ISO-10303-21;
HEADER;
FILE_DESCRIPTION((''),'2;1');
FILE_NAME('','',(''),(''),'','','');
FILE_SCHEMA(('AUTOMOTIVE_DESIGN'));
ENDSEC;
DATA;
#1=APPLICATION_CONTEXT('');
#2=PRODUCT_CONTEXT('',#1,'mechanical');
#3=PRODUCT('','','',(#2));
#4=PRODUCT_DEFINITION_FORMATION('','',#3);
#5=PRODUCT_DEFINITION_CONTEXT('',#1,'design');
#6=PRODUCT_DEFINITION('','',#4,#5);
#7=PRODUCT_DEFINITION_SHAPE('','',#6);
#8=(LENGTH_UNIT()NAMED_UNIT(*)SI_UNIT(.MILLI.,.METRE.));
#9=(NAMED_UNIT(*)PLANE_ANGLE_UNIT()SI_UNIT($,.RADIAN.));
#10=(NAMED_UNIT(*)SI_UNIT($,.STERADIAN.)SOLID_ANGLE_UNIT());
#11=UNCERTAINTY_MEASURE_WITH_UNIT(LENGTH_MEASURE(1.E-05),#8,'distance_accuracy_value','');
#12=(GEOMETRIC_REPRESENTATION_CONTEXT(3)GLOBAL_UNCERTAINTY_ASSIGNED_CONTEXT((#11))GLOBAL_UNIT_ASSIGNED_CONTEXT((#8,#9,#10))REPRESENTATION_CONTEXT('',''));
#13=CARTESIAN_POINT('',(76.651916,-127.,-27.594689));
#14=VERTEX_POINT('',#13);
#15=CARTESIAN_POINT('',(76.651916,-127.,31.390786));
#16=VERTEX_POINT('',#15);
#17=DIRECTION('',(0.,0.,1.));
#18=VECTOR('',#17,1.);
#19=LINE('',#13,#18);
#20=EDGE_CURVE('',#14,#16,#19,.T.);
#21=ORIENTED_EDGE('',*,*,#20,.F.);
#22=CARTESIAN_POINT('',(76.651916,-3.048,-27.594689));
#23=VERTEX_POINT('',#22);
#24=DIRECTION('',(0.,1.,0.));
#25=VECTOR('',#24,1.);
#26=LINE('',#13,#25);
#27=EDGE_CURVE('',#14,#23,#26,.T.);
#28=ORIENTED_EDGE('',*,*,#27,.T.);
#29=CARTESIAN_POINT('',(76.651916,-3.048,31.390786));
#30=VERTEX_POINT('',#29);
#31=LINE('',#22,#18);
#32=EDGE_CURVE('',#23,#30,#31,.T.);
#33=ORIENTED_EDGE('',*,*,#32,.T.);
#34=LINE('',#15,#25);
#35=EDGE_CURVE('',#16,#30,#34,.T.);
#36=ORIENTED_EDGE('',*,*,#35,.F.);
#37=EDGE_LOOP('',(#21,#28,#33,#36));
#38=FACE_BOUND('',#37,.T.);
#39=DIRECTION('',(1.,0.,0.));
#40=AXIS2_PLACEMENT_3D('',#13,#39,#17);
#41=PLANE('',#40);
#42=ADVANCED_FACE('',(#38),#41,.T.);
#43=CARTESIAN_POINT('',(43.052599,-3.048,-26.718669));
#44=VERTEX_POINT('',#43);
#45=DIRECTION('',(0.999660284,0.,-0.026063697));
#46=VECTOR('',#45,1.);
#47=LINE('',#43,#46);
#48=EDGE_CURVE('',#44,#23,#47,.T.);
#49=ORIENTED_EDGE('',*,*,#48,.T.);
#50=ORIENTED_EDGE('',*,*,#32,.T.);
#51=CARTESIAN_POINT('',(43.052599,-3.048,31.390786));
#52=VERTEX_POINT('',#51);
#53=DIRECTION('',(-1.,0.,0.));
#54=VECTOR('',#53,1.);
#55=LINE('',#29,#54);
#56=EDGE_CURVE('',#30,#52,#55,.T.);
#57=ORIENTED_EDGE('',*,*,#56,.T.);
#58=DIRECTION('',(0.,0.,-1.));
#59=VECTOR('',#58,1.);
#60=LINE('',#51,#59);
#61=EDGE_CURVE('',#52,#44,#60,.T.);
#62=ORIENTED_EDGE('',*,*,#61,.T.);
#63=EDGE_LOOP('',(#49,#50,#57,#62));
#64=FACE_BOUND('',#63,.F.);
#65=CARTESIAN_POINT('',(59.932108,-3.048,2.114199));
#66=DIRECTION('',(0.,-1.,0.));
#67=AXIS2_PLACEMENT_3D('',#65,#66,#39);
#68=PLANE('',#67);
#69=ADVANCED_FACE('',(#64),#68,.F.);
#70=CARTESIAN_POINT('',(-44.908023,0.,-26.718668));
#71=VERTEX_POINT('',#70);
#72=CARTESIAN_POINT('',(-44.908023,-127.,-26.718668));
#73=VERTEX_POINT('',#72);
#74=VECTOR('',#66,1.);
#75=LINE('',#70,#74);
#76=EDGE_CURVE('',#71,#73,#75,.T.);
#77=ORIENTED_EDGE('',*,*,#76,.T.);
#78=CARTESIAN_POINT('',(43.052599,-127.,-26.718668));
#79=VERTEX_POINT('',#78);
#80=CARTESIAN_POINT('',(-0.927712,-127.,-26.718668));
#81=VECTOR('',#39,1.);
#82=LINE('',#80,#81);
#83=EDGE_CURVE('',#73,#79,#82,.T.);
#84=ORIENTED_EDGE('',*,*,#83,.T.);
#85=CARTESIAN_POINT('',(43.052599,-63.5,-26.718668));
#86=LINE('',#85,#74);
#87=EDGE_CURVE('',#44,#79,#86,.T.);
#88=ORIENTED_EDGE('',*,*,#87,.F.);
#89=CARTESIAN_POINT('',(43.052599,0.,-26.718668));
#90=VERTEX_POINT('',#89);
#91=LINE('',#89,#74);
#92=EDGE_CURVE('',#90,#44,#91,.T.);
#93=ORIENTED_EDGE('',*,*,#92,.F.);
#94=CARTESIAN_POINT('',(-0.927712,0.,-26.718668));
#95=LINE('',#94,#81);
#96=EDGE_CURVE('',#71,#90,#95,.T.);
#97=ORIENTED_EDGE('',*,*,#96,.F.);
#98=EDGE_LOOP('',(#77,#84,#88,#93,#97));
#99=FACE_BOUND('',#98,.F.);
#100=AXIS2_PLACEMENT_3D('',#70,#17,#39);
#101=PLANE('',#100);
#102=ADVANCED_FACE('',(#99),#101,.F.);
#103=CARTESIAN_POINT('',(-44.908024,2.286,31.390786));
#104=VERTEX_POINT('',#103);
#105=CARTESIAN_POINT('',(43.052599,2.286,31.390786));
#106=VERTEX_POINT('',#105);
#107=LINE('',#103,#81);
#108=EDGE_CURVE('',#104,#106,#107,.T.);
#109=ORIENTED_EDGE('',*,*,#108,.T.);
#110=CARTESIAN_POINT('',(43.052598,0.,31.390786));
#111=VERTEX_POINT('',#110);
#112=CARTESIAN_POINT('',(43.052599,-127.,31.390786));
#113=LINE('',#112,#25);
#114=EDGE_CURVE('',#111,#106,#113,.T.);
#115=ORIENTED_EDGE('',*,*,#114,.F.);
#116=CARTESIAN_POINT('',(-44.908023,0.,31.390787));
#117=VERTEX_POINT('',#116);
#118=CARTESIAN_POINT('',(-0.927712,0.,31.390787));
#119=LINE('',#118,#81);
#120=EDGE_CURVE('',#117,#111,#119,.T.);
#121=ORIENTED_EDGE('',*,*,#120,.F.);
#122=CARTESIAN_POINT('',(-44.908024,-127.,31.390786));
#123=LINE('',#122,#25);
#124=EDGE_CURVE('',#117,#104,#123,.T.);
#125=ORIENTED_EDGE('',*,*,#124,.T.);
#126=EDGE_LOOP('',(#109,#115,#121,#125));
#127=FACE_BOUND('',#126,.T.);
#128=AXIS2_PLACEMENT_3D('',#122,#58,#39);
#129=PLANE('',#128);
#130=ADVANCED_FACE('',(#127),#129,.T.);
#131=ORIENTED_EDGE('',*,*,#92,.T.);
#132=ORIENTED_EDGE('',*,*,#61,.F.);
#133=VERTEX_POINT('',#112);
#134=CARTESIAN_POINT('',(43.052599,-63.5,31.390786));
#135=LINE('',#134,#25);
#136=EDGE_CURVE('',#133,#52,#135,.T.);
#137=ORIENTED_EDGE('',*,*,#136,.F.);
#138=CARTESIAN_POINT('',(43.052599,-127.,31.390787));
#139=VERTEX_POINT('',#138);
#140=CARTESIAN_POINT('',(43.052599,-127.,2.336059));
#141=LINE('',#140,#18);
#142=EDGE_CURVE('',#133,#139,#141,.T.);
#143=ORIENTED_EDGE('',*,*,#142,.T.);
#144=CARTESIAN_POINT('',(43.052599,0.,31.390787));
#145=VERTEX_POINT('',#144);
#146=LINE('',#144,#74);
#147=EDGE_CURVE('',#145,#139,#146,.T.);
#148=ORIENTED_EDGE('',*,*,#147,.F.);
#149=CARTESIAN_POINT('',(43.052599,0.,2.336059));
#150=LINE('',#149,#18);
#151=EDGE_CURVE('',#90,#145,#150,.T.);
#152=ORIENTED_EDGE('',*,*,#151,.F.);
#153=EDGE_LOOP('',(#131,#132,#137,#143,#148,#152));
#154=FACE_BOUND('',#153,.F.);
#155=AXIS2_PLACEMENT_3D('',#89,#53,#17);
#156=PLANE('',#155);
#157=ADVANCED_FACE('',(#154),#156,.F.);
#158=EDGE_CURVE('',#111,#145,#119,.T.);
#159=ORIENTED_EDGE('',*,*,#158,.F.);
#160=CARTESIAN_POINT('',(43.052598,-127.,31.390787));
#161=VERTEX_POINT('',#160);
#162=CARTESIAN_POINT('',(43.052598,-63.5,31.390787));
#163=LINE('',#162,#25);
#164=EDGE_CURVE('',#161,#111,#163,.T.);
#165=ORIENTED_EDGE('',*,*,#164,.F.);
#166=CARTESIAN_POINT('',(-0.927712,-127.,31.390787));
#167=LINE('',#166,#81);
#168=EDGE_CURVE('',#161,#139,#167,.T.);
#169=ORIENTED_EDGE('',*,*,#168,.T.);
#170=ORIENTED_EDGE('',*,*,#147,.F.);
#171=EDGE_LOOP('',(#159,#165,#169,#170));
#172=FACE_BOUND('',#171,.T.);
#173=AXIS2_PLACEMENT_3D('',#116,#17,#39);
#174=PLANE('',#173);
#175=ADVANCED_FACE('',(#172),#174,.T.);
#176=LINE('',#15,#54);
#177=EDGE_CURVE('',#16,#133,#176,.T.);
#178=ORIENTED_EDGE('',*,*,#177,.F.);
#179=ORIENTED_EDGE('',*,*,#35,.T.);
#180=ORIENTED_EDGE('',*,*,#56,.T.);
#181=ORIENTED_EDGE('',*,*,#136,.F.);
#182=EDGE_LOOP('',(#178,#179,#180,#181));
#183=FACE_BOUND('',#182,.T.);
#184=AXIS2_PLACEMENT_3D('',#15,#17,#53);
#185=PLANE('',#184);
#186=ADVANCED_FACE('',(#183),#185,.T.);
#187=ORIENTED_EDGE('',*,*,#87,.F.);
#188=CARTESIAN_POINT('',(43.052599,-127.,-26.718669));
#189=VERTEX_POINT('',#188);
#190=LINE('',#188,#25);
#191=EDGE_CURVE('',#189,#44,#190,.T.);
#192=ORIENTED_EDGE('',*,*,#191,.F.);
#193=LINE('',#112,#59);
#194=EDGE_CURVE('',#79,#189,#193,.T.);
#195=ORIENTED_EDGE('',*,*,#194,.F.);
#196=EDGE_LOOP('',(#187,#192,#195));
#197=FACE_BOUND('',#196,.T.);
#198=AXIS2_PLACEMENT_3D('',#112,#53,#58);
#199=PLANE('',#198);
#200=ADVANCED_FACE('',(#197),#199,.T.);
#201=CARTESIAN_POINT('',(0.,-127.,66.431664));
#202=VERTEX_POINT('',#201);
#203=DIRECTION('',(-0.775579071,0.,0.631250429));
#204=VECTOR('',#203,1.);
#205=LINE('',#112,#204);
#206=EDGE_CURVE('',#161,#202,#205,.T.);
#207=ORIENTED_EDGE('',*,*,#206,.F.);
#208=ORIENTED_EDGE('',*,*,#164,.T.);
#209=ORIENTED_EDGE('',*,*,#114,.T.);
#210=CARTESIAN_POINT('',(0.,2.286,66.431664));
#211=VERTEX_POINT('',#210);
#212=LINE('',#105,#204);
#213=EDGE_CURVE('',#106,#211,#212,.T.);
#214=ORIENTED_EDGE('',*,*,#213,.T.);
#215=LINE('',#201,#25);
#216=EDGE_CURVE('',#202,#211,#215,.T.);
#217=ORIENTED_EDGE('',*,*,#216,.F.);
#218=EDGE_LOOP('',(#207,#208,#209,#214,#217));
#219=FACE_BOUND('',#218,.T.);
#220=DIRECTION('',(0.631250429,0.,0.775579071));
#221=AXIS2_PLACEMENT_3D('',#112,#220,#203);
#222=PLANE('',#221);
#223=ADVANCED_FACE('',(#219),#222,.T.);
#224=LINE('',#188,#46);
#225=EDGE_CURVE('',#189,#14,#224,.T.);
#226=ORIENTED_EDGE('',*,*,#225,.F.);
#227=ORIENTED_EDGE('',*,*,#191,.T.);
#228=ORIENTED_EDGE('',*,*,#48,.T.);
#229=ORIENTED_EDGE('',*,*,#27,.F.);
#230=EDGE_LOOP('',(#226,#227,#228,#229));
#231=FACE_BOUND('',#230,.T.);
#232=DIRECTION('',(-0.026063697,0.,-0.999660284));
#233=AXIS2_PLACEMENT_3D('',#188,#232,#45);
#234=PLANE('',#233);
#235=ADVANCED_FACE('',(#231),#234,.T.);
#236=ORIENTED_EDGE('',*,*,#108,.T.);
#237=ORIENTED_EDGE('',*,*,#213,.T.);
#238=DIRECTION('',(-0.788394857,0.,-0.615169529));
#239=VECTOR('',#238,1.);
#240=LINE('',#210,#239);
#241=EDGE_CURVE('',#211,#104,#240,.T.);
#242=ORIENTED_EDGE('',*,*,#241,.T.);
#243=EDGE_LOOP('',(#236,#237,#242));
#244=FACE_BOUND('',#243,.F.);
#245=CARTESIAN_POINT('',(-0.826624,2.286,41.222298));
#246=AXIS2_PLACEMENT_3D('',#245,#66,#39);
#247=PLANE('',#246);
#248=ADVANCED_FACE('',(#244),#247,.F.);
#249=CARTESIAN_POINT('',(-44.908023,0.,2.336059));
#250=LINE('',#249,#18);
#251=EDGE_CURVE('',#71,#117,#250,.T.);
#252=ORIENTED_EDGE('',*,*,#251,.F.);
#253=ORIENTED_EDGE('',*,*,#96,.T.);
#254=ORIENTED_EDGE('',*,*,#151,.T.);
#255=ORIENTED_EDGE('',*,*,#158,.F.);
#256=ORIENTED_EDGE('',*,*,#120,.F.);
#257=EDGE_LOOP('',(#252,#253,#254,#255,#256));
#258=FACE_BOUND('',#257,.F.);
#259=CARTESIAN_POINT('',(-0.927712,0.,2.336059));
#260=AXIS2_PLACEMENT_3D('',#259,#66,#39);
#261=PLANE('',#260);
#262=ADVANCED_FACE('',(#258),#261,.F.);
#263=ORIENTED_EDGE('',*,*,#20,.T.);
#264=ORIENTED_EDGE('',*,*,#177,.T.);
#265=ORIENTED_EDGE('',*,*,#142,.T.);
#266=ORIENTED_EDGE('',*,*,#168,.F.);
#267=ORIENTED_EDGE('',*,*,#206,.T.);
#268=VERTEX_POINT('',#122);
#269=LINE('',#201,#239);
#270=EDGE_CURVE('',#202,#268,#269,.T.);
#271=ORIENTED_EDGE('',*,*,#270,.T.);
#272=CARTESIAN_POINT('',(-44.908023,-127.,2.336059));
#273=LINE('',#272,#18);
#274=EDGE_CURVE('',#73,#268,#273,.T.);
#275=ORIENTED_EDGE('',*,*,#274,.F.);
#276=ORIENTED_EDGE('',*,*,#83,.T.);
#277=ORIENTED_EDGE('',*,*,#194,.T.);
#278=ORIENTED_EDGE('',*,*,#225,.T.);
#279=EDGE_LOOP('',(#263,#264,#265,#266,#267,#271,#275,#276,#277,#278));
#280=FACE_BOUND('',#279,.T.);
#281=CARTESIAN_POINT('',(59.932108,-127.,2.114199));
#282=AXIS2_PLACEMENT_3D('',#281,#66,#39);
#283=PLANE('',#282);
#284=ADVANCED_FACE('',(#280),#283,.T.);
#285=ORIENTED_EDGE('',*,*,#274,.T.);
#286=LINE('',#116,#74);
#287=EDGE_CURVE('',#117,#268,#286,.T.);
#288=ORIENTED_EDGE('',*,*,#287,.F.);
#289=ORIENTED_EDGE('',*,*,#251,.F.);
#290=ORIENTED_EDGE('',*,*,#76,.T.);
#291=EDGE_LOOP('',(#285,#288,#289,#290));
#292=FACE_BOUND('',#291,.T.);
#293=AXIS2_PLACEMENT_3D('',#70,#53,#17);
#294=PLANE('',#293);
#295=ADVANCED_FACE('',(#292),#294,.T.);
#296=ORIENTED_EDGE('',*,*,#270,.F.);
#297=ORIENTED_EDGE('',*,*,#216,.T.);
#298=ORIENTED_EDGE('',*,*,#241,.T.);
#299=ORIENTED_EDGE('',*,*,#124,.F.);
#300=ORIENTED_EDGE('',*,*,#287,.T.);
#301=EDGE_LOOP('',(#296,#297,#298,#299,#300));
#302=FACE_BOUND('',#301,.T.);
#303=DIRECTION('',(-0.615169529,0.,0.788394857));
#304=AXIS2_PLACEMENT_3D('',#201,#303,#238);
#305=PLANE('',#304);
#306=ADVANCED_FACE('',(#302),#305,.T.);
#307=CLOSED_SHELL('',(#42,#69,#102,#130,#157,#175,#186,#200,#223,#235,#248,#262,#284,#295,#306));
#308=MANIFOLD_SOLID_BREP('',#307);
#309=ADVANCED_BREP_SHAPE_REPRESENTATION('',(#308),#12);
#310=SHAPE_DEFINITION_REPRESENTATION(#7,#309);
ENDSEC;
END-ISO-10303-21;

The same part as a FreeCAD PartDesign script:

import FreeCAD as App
import Part
import Sketcher
Q = App.Units.Quantity

doc = App.newDocument("Part")
body = doc.addObject("PartDesign::Body", "Body")

sketch1 = body.newObject("Sketcher::SketchObject", "Sketch")
sketch1.AttachmentSupport = (doc.getObject("XZ_Plane"), [""])
sketch1.MapMode = "FlatFace"
sketch1.addGeometry(Part.LineSegment(App.Vector(-44.908023, 31.390787, 0), App.Vector(-44.908023, -26.718668, 0)), False)
sketch1.addGeometry(Part.LineSegment(App.Vector(-44.908023, -26.718668, 0), App.Vector(43.052599, -26.718668, 0)), False)
sketch1.addGeometry(Part.LineSegment(App.Vector(43.052599, -26.718668, 0), App.Vector(43.052599, 31.390787, 0)), False)
sketch1.addGeometry(Part.LineSegment(App.Vector(43.052599, 31.390787, 0), App.Vector(-44.908023, 31.390787, 0)), False)
sketch1.addConstraint(Sketcher.Constraint("Coincident", 0, 2, 1, 1))
sketch1.addConstraint(Sketcher.Constraint("Coincident", 1, 2, 2, 1))
sketch1.addConstraint(Sketcher.Constraint("Coincident", 2, 2, 3, 1))
sketch1.addConstraint(Sketcher.Constraint("Coincident", 3, 2, 0, 1))
sketch1.addConstraint(Sketcher.Constraint("Vertical", 0))
sketch1.addConstraint(Sketcher.Constraint("Horizontal", 1))
sketch1.addConstraint(Sketcher.Constraint("Vertical", 2))
sketch1.addConstraint(Sketcher.Constraint("Horizontal", 3))
sketch1.addConstraint(Sketcher.Constraint("DistanceX", -1, 1, 1, 2, Q("43.052599 mm")))
sketch1.addConstraint(Sketcher.Constraint("DistanceX", 1, 1, 1, 2, Q("87.960623 mm")))
sketch1.addConstraint(Sketcher.Constraint("DistanceY", 0, 2, 0, 1, Q("58.109455 mm")))
sketch1.addConstraint(Sketcher.Constraint("DistanceY", 0, 2, -1, 1, Q("26.718668 mm")))
pad1 = body.newObject("PartDesign::Pad", "Pad")
pad1.Profile = sketch1
pad1.Length = Q("5 in")

sketch2 = body.newObject("Sketcher::SketchObject", "Sketch001")
sketch2.AttachmentSupport = (doc.getObject("XZ_Plane"), [""])
sketch2.MapMode = "FlatFace"
sketch2.AttachmentOffset = App.Placement(App.Vector(0, 0, 5 * 25.4), App.Rotation())
sketch2.addGeometry(Part.LineSegment(App.Vector(0, 66.431664, 0), App.Vector(-44.908024, 31.390786, 0)), False)
sketch2.addGeometry(Part.LineSegment(App.Vector(-44.908024, 31.390786, 0), App.Vector(43.052599, 31.390786, 0)), False)
sketch2.addGeometry(Part.LineSegment(App.Vector(43.052599, 31.390786, 0), App.Vector(0, 66.431664, 0)), False)
sketch2.addConstraint(Sketcher.Constraint("Coincident", 0, 2, 1, 1))
sketch2.addConstraint(Sketcher.Constraint("Coincident", 1, 2, 2, 1))
sketch2.addConstraint(Sketcher.Constraint("Coincident", 2, 2, 0, 1))
sketch2.addConstraint(Sketcher.Constraint("Horizontal", 1))
sketch2.addConstraint(Sketcher.Constraint("PointOnObject", 2, 2, -2))
sketch2.addConstraint(Sketcher.Constraint("DistanceX", -1, 1, 1, 2, Q("43.052599 mm")))
sketch2.addConstraint(Sketcher.Constraint("DistanceX", 1, 1, 1, 2, Q("87.960623 mm")))
sketch2.addConstraint(Sketcher.Constraint("Distance", 0, Q("56.961336 mm")))
sketch2.addConstraint(Sketcher.Constraint("DistanceY", -1, 1, 0, 2, Q("31.390786 mm")))
pad2 = body.newObject("PartDesign::Pad", "Pad001")
pad2.Profile = sketch2
pad2.Length = Q("5.09 in")
pad2.Reversed = True

sketch3 = body.newObject("Sketcher::SketchObject", "Sketch002")
sketch3.AttachmentSupport = (doc.getObject("XZ_Plane"), [""])
sketch3.MapMode = "FlatFace"
sketch3.AttachmentOffset = App.Placement(App.Vector(0, 0, 5 * 25.4), App.Rotation())
sketch3.addGeometry(Part.LineSegment(App.Vector(76.651916, 31.390786, 0), App.Vector(43.052599, 31.390786, 0)), False)
sketch3.addGeometry(Part.LineSegment(App.Vector(43.052599, 31.390786, 0), App.Vector(43.052599, -26.718669, 0)), False)
sketch3.addGeometry(Part.LineSegment(App.Vector(43.052599, -26.718669, 0), App.Vector(76.651916, -27.594689, 0)), False)
sketch3.addGeometry(Part.LineSegment(App.Vector(76.651916, -27.594689, 0), App.Vector(76.651916, 31.390786, 0)), False)
sketch3.addConstraint(Sketcher.Constraint("Coincident", 0, 2, 1, 1))
sketch3.addConstraint(Sketcher.Constraint("Coincident", 1, 2, 2, 1))
sketch3.addConstraint(Sketcher.Constraint("Coincident", 2, 2, 3, 1))
sketch3.addConstraint(Sketcher.Constraint("Coincident", 3, 2, 0, 1))
sketch3.addConstraint(Sketcher.Constraint("Horizontal", 0))
sketch3.addConstraint(Sketcher.Constraint("Vertical", 1))
sketch3.addConstraint(Sketcher.Constraint("Vertical", 3))
sketch3.addConstraint(Sketcher.Constraint("DistanceX", -1, 1, 0, 2, Q("43.052599 mm")))
sketch3.addConstraint(Sketcher.Constraint("DistanceX", 0, 2, 0, 1, Q("33.599317 mm")))
sketch3.addConstraint(Sketcher.Constraint("DistanceY", 1, 2, 1, 1, Q("58.109455 mm")))
sketch3.addConstraint(Sketcher.Constraint("DistanceY", 3, 1, 3, 2, Q("58.985475 mm")))
sketch3.addConstraint(Sketcher.Constraint("DistanceY", 1, 2, -1, 1, Q("26.718669 mm")))
pad3 = body.newObject("PartDesign::Pad", "Pad002")
pad3.Profile = sketch3
pad3.Length = Q("4.88 in")
pad3.Reversed = True

doc.recompute()
